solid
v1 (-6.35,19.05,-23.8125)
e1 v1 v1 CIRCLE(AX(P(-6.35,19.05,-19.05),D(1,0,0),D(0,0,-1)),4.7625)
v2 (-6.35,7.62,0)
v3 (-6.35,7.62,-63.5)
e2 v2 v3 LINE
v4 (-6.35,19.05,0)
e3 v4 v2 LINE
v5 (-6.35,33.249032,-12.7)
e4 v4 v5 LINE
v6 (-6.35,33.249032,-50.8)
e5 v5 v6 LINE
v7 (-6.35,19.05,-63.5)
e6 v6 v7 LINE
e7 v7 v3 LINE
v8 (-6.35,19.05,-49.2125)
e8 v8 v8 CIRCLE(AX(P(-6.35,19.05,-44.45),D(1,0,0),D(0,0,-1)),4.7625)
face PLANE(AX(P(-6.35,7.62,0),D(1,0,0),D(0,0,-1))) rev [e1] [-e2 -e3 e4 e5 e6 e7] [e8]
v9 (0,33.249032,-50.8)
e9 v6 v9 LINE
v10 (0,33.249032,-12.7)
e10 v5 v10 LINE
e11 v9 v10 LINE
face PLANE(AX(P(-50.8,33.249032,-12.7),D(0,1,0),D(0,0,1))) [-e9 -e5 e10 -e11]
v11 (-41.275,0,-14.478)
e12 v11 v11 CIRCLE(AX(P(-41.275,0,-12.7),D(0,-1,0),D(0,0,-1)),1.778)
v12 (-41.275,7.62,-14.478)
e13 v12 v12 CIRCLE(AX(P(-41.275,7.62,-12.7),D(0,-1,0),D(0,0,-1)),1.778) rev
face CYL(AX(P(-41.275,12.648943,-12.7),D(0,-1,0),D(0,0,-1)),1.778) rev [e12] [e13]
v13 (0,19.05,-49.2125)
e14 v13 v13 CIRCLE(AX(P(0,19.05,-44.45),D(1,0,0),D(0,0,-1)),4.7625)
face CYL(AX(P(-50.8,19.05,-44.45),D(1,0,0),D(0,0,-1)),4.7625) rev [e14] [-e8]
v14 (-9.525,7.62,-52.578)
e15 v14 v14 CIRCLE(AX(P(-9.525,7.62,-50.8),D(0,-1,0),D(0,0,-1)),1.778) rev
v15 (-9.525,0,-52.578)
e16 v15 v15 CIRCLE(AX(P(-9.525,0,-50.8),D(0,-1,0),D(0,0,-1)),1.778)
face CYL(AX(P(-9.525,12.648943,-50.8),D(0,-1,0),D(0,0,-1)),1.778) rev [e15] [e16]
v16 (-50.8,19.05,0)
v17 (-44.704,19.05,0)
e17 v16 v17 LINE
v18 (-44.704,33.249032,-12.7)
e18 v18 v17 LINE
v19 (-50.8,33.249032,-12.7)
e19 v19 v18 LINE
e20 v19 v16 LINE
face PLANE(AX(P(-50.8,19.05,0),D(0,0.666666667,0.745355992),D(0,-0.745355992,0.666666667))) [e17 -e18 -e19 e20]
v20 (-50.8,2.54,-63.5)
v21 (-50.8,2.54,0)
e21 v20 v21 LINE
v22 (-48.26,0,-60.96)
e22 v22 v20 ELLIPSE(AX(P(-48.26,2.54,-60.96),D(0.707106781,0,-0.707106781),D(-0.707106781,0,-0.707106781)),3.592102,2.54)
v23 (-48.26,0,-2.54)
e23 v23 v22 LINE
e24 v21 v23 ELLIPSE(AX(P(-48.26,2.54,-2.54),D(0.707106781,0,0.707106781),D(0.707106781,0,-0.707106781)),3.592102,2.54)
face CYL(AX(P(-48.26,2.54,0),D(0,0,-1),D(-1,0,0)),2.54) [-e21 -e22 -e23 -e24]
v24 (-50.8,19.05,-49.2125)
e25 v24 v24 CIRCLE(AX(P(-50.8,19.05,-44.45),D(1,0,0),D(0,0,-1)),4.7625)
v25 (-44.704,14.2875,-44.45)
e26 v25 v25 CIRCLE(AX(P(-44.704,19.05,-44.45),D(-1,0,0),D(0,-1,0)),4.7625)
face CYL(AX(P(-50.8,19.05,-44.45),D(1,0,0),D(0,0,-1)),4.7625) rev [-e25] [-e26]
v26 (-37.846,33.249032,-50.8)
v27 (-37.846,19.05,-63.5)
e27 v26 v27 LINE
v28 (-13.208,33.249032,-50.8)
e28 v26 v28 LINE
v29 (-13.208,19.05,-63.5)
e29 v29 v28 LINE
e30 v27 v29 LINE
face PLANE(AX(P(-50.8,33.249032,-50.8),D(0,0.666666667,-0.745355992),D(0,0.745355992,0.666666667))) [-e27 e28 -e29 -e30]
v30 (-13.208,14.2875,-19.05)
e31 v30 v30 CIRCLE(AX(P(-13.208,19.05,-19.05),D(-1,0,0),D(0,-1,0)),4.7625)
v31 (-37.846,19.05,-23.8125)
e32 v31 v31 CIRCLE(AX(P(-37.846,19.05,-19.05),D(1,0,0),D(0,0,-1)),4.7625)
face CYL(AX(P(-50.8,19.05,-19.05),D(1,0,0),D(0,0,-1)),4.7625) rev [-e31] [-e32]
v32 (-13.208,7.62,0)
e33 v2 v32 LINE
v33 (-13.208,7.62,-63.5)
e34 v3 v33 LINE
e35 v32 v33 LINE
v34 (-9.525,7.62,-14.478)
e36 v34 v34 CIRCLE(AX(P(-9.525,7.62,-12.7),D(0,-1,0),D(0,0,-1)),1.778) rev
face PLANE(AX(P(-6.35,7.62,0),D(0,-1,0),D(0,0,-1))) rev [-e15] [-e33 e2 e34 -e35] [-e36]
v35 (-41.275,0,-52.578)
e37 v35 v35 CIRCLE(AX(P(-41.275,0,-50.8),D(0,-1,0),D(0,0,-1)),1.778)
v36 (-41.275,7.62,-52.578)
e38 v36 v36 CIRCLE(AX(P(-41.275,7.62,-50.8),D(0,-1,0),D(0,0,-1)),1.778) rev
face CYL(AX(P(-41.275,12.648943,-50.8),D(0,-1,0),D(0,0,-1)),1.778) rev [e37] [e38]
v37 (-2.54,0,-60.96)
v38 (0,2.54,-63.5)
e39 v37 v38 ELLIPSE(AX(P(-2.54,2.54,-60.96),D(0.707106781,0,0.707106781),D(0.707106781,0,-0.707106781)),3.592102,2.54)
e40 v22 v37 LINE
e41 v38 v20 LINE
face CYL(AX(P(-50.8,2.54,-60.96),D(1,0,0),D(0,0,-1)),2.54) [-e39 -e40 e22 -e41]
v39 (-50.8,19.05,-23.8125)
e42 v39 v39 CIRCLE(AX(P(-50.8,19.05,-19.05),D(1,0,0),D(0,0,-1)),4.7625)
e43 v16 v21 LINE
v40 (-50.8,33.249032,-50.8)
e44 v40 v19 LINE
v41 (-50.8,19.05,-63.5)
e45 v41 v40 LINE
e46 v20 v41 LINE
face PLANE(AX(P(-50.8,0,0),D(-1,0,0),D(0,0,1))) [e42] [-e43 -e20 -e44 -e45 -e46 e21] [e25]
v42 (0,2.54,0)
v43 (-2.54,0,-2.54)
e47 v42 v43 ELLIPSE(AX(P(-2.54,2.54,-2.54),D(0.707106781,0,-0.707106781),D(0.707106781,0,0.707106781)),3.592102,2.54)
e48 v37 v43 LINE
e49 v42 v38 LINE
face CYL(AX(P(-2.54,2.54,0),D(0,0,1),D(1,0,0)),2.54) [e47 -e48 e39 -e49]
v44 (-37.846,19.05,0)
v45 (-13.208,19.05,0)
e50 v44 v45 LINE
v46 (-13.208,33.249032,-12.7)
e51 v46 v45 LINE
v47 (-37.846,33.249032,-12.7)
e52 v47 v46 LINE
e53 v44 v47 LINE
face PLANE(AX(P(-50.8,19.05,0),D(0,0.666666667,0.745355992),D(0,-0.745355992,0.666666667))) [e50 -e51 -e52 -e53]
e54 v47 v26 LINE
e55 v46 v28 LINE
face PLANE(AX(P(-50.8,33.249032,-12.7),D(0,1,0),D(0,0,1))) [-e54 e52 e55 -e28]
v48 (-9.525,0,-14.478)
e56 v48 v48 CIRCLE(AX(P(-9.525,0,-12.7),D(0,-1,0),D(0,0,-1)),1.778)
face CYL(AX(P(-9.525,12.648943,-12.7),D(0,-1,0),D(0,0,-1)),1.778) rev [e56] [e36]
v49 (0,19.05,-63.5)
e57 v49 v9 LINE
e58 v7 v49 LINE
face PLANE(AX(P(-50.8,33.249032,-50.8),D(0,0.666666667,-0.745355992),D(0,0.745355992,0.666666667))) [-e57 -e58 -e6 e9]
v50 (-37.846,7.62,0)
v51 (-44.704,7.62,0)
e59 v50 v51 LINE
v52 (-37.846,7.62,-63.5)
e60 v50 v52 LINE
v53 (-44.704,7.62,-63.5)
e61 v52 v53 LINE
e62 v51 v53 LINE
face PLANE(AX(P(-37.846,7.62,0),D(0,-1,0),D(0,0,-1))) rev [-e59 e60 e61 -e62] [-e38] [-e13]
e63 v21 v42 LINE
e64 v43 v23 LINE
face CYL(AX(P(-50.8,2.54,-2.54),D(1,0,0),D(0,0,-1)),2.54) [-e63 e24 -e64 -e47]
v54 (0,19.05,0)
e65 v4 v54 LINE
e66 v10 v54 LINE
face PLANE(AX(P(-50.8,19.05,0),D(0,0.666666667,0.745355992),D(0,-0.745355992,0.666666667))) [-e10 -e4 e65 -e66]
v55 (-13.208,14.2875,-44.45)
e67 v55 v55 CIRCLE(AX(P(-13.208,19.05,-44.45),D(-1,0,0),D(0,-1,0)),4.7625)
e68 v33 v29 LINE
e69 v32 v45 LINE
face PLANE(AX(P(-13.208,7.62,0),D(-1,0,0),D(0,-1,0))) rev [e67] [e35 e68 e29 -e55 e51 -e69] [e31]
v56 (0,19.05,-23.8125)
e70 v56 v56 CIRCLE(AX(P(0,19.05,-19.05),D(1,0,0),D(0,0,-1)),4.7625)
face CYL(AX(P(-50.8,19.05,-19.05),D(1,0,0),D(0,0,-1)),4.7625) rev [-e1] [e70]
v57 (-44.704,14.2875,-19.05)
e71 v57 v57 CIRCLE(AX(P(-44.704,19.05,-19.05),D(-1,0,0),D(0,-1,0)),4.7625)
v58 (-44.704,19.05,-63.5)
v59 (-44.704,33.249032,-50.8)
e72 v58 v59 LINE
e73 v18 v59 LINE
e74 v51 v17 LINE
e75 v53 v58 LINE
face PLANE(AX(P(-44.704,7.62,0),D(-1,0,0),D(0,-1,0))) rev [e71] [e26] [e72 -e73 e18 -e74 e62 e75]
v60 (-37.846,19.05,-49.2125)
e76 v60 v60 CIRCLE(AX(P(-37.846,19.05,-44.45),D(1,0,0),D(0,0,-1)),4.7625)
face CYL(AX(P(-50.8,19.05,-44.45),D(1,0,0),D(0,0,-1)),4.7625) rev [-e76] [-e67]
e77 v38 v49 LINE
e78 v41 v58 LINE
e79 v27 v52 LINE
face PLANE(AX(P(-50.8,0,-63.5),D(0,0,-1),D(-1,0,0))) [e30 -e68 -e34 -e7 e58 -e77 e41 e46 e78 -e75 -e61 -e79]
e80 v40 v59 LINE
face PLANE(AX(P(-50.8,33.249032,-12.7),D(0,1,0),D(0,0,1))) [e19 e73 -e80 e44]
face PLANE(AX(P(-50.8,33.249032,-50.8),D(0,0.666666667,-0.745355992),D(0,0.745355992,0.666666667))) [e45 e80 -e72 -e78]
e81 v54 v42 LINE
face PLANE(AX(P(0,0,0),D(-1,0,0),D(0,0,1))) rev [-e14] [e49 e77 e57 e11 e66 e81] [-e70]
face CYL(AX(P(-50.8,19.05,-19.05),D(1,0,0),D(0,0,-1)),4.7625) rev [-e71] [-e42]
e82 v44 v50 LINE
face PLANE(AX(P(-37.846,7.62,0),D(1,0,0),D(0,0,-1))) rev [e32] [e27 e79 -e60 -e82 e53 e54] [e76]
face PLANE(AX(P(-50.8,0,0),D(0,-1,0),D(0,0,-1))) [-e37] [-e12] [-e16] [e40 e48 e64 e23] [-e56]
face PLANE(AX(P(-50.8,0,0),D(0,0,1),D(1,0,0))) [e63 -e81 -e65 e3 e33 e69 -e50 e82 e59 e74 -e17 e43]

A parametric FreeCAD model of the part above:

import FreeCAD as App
import Part
import Sketcher

V = App.Vector
Q = App.Units.Quantity


def edges_at(feature, points):
    """Names of the edges that pass closest to the given points."""
    edges = feature.Shape.Edges
    near = lambda p: min(range(len(edges)), key=lambda i: edges[i].distToShape(Part.Vertex(*p))[0])
    return sorted({f"Edge{near(p) + 1}" for p in points})

doc = App.newDocument("Part")
body = doc.addObject("PartDesign::Body", "Body")

sketch1 = body.newObject("Sketcher::SketchObject", "Sketch")
sketch1.AttachmentSupport = (doc.getObject("YZ_Plane"), [""])
sketch1.MapMode = "FlatFace"
sketch1.addGeometry(Part.LineSegment(V(6, 0, 0), V(0, 0, 0)), False)
sketch1.addGeometry(Part.LineSegment(V(0, 0, 0), V(0, -64, 0)), False)
sketch1.addGeometry(Part.LineSegment(V(0, -64, 0), V(6, -64, 0)), False)
sketch1.addGeometry(Part.LineSegment(V(6, -64, 0), V(6, 0, 0)), False)
sketch1.addConstraint(Sketcher.Constraint("Coincident", 0, 2, 1, 1))
sketch1.addConstraint(Sketcher.Constraint("Coincident", 1, 2, 2, 1))
sketch1.addConstraint(Sketcher.Constraint("Coincident", 2, 2, 3, 1))
sketch1.addConstraint(Sketcher.Constraint("Coincident", 3, 2, 0, 1))
sketch1.addConstraint(Sketcher.Constraint("Horizontal", 0))
sketch1.addConstraint(Sketcher.Constraint("Vertical", 1))
sketch1.addConstraint(Sketcher.Constraint("Horizontal", 2))
sketch1.addConstraint(Sketcher.Constraint("Vertical", 3))
sketch1.addConstraint(Sketcher.Constraint("Coincident", 0, 2, -1, 1))
sketch1.addConstraint(Sketcher.Constraint("DistanceY", 1, 2, 1, 1, Q("2.5 in")))
sketch1.addConstraint(Sketcher.Constraint("DistanceX", 0, 2, 0, 1, Q("0.25 in")))
pad1 = body.newObject("PartDesign::Pad", "Pad")
pad1.Profile = sketch1
pad1.Length = Q("2 in")
pad1.Reversed = True

sketch2 = body.newObject("Sketcher::SketchObject", "Sketch001")
sketch2.AttachmentSupport = (doc.getObject("YZ_Plane"), [""])
sketch2.MapMode = "FlatFace"
sketch2.addGeometry(Part.LineSegment(V(19, 0, 0), V(6, 0, 0)), False)
sketch2.addGeometry(Part.LineSegment(V(6, 0, 0), V(6, -64, 0)), False)
sketch2.addGeometry(Part.LineSegment(V(6, -64, 0), V(19, -64, 0)), False)
sketch2.addGeometry(Part.LineSegment(V(19, -64, 0), V(33, -51, 0)), False)
sketch2.addGeometry(Part.LineSegment(V(33, -51, 0), V(33, -13, 0)), False)
sketch2.addGeometry(Part.LineSegment(V(33, -13, 0), V(19, 0, 0)), False)
sketch2.addConstraint(Sketcher.Constraint("Coincident", 0, 2, 1, 1))
sketch2.addConstraint(Sketcher.Constraint("Coincident", 1, 2, 2, 1))
sketch2.addConstraint(Sketcher.Constraint("Coincident", 2, 2, 3, 1))
sketch2.addConstraint(Sketcher.Constraint("Coincident", 3, 2, 4, 1))
sketch2.addConstraint(Sketcher.Constraint("Coincident", 4, 2, 5, 1))
sketch2.addConstraint(Sketcher.Constraint("Coincident", 5, 2, 0, 1))
sketch2.addConstraint(Sketcher.Constraint("Horizontal", 0))
sketch2.addConstraint(Sketcher.Constraint("Vertical", 1))
sketch2.addConstraint(Sketcher.Constraint("Horizontal", 2))
sketch2.addConstraint(Sketcher.Constraint("Vertical", 4))
sketch2.addConstraint(Sketcher.Constraint("PointOnObject", 0, 2, -1))
sketch2.addConstraint(Sketcher.Constraint("Vertical", 2, 2, 5, 2))
sketch2.addConstraint(Sketcher.Constraint("Equal", 3, 5))
sketch2.addConstraint(Sketcher.Constraint("DistanceX", 0, 2, 0, 1, Q("0.5 in")))
sketch2.addConstraint(Sketcher.Constraint("DistanceY", 1, 2, 1, 1, Q("2.5 in")))
sketch2.addConstraint(Sketcher.Constraint("DistanceY", 4, 1, 4, 2, Q("1.5 in")))
sketch2.addConstraint(Sketcher.Constraint("Distance", 3, Q("0.75 in")))
sketch2.addConstraint(Sketcher.Constraint("DistanceX", -1, 1, 0, 2, Q("0.25 in")))
pad2 = body.newObject("PartDesign::Pad", "Pad001")
pad2.Profile = sketch2
pad2.Length = Q("2 in")
pad2.Reversed = True

sketch3 = body.newObject("Sketcher::SketchObject", "Sketch002")
sketch3.AttachmentSupport = (doc.getObject("XY_Plane"), [""])
sketch3.MapMode = "FlatFace"
sketch3.AttachmentOffset = App.Placement(V(0, 0, -2.5 * 25.4), App.Rotation())
sketch3.addGeometry(Part.LineSegment(V(-6, 33, 0), V(-6, 8, 0)), False)
sketch3.addGeometry(Part.LineSegment(V(-6, 8, 0), V(-13, 8, 0)), False)
sketch3.addGeometry(Part.LineSegment(V(-13, 8, 0), V(-13, 33, 0)), False)
sketch3.addGeometry(Part.LineSegment(V(-13, 33, 0), V(-6, 33, 0)), False)
sketch3.addConstraint(Sketcher.Constraint("Coincident", 0, 2, 1, 1))
sketch3.addConstraint(Sketcher.Constraint("Coincident", 1, 2, 2, 1))
sketch3.addConstraint(Sketcher.Constraint("Coincident", 2, 2, 3, 1))
sketch3.addConstraint(Sketcher.Constraint("Coincident", 3, 2, 0, 1))
sketch3.addConstraint(Sketcher.Constraint("Vertical", 0))
sketch3.addConstraint(Sketcher.Constraint("Horizontal", 1))
sketch3.addConstraint(Sketcher.Constraint("Vertical", 2))
sketch3.addConstraint(Sketcher.Constraint("Horizontal", 3))
sketch3.addConstraint(Sketcher.Constraint("DistanceX", 1, 2, 1, 1, Q("0.27 in")))
sketch3.addConstraint(Sketcher.Constraint("DistanceY", -1, 1, 0, 2, Q("0.3 in")))
sketch3.addConstraint(Sketcher.Constraint("DistanceX", 0, 2, -1, 1, Q("0.25 in")))
sketch3.addConstraint(Sketcher.Constraint("DistanceY", 0, 2, 0, 1, 25.629032))
pocket1 = body.newObject("PartDesign::Pocket", "Pocket")
pocket1.Profile = sketch3
pocket1.Type = "ThroughAll"
pocket1.Reversed = True
doc.recompute()

linearpattern = body.newObject("PartDesign::LinearPattern", "LinearPattern")
linearpattern.Originals = [pocket1]
linearpattern.Direction = (doc.getObject("X_Axis"), [""])
linearpattern.Mode = "offset"
linearpattern.Offset = Q("1.24 in")
linearpattern.Occurrences = 2
linearpattern.Reversed = True
body.Tip = linearpattern

sketch4 = body.newObject("Sketcher::SketchObject", "Sketch003")
sketch4.AttachmentSupport = (doc.getObject("YZ_Plane"), [""])
sketch4.MapMode = "FlatFace"
sketch4.addGeometry(Part.Circle(V(19.1, -19.1, 0), V(0, 0, 1), 4.8), False)
sketch4.addGeometry(Part.Circle(V(19.1, -44.5, 0), V(0, 0, 1), 4.8), False)
sketch4.addConstraint(Sketcher.Constraint("Equal", 0, 1))
sketch4.addConstraint(Sketcher.Constraint("Vertical", 0, 3, 1, 3))
sketch4.addConstraint(Sketcher.Constraint("Diameter", 0, Q("0.375 in")))
sketch4.addConstraint(Sketcher.Constraint("DistanceY", 1, 3, 0, 3, Q("1 in")))
sketch4.addConstraint(Sketcher.Constraint("DistanceX", -1, 1, 0, 3, Q("0.75 in")))
sketch4.addConstraint(Sketcher.Constraint("DistanceY", 0, 3, -1, 1, Q("0.75 in")))
pocket2 = body.newObject("PartDesign::Pocket", "Pocket001")
pocket2.Profile = sketch4
pocket2.Type = "ThroughAll"
doc.recompute()

fillet = body.newObject("PartDesign::Fillet", "Fillet")
fillet.Base = (pocket2, edges_at(pocket2, [
    (0, 0, -31.75),
    (-50.8, 0, -31.75),
    (-25.4, 0, -63.5),
    (-25.4, 0, 0),
]))
fillet.Radius = Q("0.1 in")

sketch5 = body.newObject("Sketcher::SketchObject", "Sketch004")
sketch5.AttachmentSupport = (doc.getObject("XZ_Plane"), [""])
sketch5.MapMode = "FlatFace"
sketch5.addGeometry(Part.Circle(V(-9.5, -50.8, 0), V(0, 0, 1), 1.8), False)
sketch5.addGeometry(Part.Circle(V(-41.3, -50.8, 0), V(0, 0, 1), 1.8), False)
sketch5.addGeometry(Part.Circle(V(-41.3, -12.7, 0), V(0, 0, 1), 1.8), False)
sketch5.addGeometry(Part.Circle(V(-9.5, -12.7, 0), V(0, 0, 1), 1.8), False)
sketch5.addConstraint(Sketcher.Constraint("Equal", 0, 1))
sketch5.addConstraint(Sketcher.Constraint("Equal", 1, 2))
sketch5.addConstraint(Sketcher.Constraint("Equal", 2, 3))
sketch5.addConstraint(Sketcher.Constraint("Horizontal", 0, 3, 1, 3))
sketch5.addConstraint(Sketcher.Constraint("Horizontal", 2, 3, 3, 3))
sketch5.addConstraint(Sketcher.Constraint("Vertical", 1, 3, 2, 3))
sketch5.addConstraint(Sketcher.Constraint("Vertical", 0, 3, 3, 3))
sketch5.addConstraint(Sketcher.Constraint("Diameter", 0, Q("0.14 in")))
sketch5.addConstraint(Sketcher.Constraint("DistanceY", 0, 3, -1, 1, Q("2 in")))
sketch5.addConstraint(Sketcher.Constraint("DistanceY", 2, 3, -1, 1, Q("0.5 in")))
sketch5.addConstraint(Sketcher.Constraint("DistanceX", 1, 3, 0, 3, Q("1.25 in")))
sketch5.addConstraint(Sketcher.Constraint("DistanceX", 0, 3, -1, 1, Q("0.375 in")))
pocket3 = body.newObject("PartDesign::Pocket", "Pocket002")
pocket3.Profile = sketch5
pocket3.Length = Q("0.3 in")

doc.recompute()
